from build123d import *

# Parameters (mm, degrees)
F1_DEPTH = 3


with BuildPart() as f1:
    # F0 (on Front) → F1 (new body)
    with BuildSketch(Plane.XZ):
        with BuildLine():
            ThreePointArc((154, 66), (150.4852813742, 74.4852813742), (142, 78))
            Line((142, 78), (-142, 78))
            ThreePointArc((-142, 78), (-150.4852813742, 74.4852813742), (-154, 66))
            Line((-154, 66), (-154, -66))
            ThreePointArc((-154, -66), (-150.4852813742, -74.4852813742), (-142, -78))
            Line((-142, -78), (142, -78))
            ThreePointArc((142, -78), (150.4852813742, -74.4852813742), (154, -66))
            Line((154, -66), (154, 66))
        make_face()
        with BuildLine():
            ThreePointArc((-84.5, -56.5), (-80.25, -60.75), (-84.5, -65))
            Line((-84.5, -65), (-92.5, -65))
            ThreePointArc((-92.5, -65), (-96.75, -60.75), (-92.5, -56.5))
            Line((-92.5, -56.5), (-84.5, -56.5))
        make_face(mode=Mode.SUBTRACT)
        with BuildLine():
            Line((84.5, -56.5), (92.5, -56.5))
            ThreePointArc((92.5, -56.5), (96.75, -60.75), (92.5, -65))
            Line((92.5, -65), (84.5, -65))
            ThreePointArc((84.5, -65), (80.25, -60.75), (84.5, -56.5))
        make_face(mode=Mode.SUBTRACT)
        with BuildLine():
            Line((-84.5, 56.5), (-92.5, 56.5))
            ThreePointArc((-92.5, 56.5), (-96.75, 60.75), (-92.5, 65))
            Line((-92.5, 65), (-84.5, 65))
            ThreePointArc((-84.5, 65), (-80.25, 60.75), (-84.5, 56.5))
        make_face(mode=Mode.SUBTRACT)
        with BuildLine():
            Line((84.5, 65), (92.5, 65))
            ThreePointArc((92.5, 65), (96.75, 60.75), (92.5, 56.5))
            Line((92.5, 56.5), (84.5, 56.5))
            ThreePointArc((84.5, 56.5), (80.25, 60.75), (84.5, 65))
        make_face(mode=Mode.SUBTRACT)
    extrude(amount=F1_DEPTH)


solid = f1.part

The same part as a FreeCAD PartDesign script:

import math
import FreeCAD as App
import Part
import Sketcher
Q = App.Units.Quantity

doc = App.newDocument("Part")
params = doc.addObject("Spreadsheet::Sheet", "Params")
for row, (alias, value) in enumerate([
    ("sketch1_radius", "12 mm"),
    ("sketch1_width", "284 mm"),
    ("sketch1_width2", "8 mm"),
    ("sketch1_height", "132 mm"),
    ("sketch1_radius2", "4.25 mm"),
    ("pad1_length", "3 mm"),
], start=1):
    params.set(f"A{row}", alias)
    params.set(f"B{row}", "=" + value)
    params.setAlias(f"B{row}", alias)

body = doc.addObject("PartDesign::Body", "Body")

# Sketch on XZ plane
sketch1 = doc.addObject("Sketcher::SketchObject", "Sketch")
body.addObject(sketch1)
sketch1.AttachmentSupport = (doc.XZ_Plane, [""])
sketch1.MapMode = "FlatFace"
sketch1.addGeometry(Part.ArcOfCircle(Part.Circle(App.Vector(142, 66, 0), App.Vector(0, 0, 1), 12), math.radians(0), math.radians(90)), False)
sketch1.addGeometry(Part.LineSegment(App.Vector(142, 78, 0), App.Vector(-142, 78, 0)), False)
sketch1.addGeometry(Part.ArcOfCircle(Part.Circle(App.Vector(-142, 66, 0), App.Vector(0, 0, 1), 12), math.radians(90), math.radians(180)), False)
sketch1.addGeometry(Part.LineSegment(App.Vector(-154, 66, 0), App.Vector(-154, -66, 0)), False)
sketch1.addGeometry(Part.ArcOfCircle(Part.Circle(App.Vector(-142, -66, 0), App.Vector(0, 0, 1), 12), math.radians(180), math.radians(270)), False)
sketch1.addGeometry(Part.LineSegment(App.Vector(-142, -78, 0), App.Vector(142, -78, 0)), False)
sketch1.addGeometry(Part.ArcOfCircle(Part.Circle(App.Vector(142, -66, 0), App.Vector(0, 0, 1), 12), math.radians(-90), math.radians(0)), False)
sketch1.addGeometry(Part.LineSegment(App.Vector(154, -66, 0), App.Vector(154, 66, 0)), False)
sketch1.addGeometry(Part.LineSegment(App.Vector(-92.5, -56.5, 0), App.Vector(-84.5, -56.5, 0)), False)
sketch1.addGeometry(Part.ArcOfCircle(Part.Circle(App.Vector(-84.5, -60.8, 0), App.Vector(0, 0, 1), 4.2), math.radians(-90), math.radians(90)), False)
sketch1.addGeometry(Part.LineSegment(App.Vector(-84.5, -65, 0), App.Vector(-92.5, -65, 0)), False)
sketch1.addGeometry(Part.ArcOfCircle(Part.Circle(App.Vector(-92.5, -60.8, 0), App.Vector(0, 0, 1), 4.2), math.radians(90), math.radians(270)), False)
sketch1.addGeometry(Part.ArcOfCircle(Part.Circle(App.Vector(84.5, -60.8, 0), App.Vector(0, 0, 1), 4.2), math.radians(90), math.radians(270)), False)
sketch1.addGeometry(Part.LineSegment(App.Vector(84.5, -56.5, 0), App.Vector(92.5, -56.5, 0)), False)
sketch1.addGeometry(Part.ArcOfCircle(Part.Circle(App.Vector(92.5, -60.8, 0), App.Vector(0, 0, 1), 4.2), math.radians(-90), math.radians(90)), False)
sketch1.addGeometry(Part.LineSegment(App.Vector(92.5, -65, 0), App.Vector(84.5, -65, 0)), False)
sketch1.addGeometry(Part.ArcOfCircle(Part.Circle(App.Vector(-84.5, 60.8, 0), App.Vector(0, 0, 1), 4.2), math.radians(-90), math.radians(90)), False)
sketch1.addGeometry(Part.LineSegment(App.Vector(-84.5, 56.5, 0), App.Vector(-92.5, 56.5, 0)), False)
sketch1.addGeometry(Part.ArcOfCircle(Part.Circle(App.Vector(-92.5, 60.8, 0), App.Vector(0, 0, 1), 4.2), math.radians(90), math.radians(270)), False)
sketch1.addGeometry(Part.LineSegment(App.Vector(-92.5, 65, 0), App.Vector(-84.5, 65, 0)), False)
sketch1.addGeometry(Part.ArcOfCircle(Part.Circle(App.Vector(84.5, 60.8, 0), App.Vector(0, 0, 1), 4.2), math.radians(90), math.radians(270)), False)
sketch1.addGeometry(Part.LineSegment(App.Vector(84.5, 65, 0), App.Vector(92.5, 65, 0)), False)
sketch1.addGeometry(Part.ArcOfCircle(Part.Circle(App.Vector(92.5, 60.8, 0), App.Vector(0, 0, 1), 4.2), math.radians(-90), math.radians(90)), False)
sketch1.addGeometry(Part.LineSegment(App.Vector(92.5, 56.5, 0), App.Vector(84.5, 56.5, 0)), False)
sketch1.addConstraint(Sketcher.Constraint("Tangent", 0, 2, 1, 1))
sketch1.addConstraint(Sketcher.Constraint("Tangent", 1, 2, 2, 1))
sketch1.addConstraint(Sketcher.Constraint("Tangent", 2, 2, 3, 1))
sketch1.addConstraint(Sketcher.Constraint("Tangent", 3, 2, 4, 1))
sketch1.addConstraint(Sketcher.Constraint("Tangent", 4, 2, 5, 1))
sketch1.addConstraint(Sketcher.Constraint("Tangent", 5, 2, 6, 1))
sketch1.addConstraint(Sketcher.Constraint("Tangent", 6, 2, 7, 1))
sketch1.addConstraint(Sketcher.Constraint("Tangent", 7, 2, 0, 1))
sketch1.addConstraint(Sketcher.Constraint("Tangent", 8, 2, 9, 2))
sketch1.addConstraint(Sketcher.Constraint("Tangent", 9, 1, 10, 1))
sketch1.addConstraint(Sketcher.Constraint("Tangent", 10, 2, 11, 2))
sketch1.addConstraint(Sketcher.Constraint("Tangent", 11, 1, 8, 1))
sketch1.addConstraint(Sketcher.Constraint("Tangent", 12, 1, 13, 1))
sketch1.addConstraint(Sketcher.Constraint("Tangent", 13, 2, 14, 2))
sketch1.addConstraint(Sketcher.Constraint("Tangent", 14, 1, 15, 1))
sketch1.addConstraint(Sketcher.Constraint("Tangent", 15, 2, 12, 2))
sketch1.addConstraint(Sketcher.Constraint("Tangent", 16, 1, 17, 1))
sketch1.addConstraint(Sketcher.Constraint("Tangent", 17, 2, 18, 2))
sketch1.addConstraint(Sketcher.Constraint("Tangent", 18, 1, 19, 1))
sketch1.addConstraint(Sketcher.Constraint("Tangent", 19, 2, 16, 2))
sketch1.addConstraint(Sketcher.Constraint("Tangent", 20, 1, 21, 1))
sketch1.addConstraint(Sketcher.Constraint("Tangent", 21, 2, 22, 2))
sketch1.addConstraint(Sketcher.Constraint("Tangent", 22, 1, 23, 1))
sketch1.addConstraint(Sketcher.Constraint("Tangent", 23, 2, 20, 2))
sketch1.addConstraint(Sketcher.Constraint("Horizontal", 1))
sketch1.addConstraint(Sketcher.Constraint("Vertical", 3))
sketch1.addConstraint(Sketcher.Constraint("Horizontal", 5))
sketch1.addConstraint(Sketcher.Constraint("Vertical", 7))
sketch1.addConstraint(Sketcher.Constraint("Horizontal", 8))
sketch1.addConstraint(Sketcher.Constraint("Horizontal", 10))
sketch1.addConstraint(Sketcher.Constraint("Horizontal", 13))
sketch1.addConstraint(Sketcher.Constraint("Horizontal", 15))
sketch1.addConstraint(Sketcher.Constraint("Horizontal", 17))
sketch1.addConstraint(Sketcher.Constraint("Horizontal", 19))
sketch1.addConstraint(Sketcher.Constraint("Horizontal", 21))
sketch1.addConstraint(Sketcher.Constraint("Horizontal", 23))
sketch1.addConstraint(Sketcher.Constraint("Equal", 0, 2))
sketch1.addConstraint(Sketcher.Constraint("Equal", 2, 4))
sketch1.addConstraint(Sketcher.Constraint("Equal", 4, 6))
sketch1.addConstraint(Sketcher.Constraint("Equal", 11, 12))
sketch1.addConstraint(Sketcher.Constraint("Equal", 14, 16))
sketch1.addConstraint(Sketcher.Constraint("Equal", 18, 20))
sketch1.addConstraint(Sketcher.Constraint("Symmetric", 0, 3, 4, 3, -1, 1))
sketch1.addConstraint(Sketcher.Constraint("Symmetric", 12, 3, 16, 3, -1, 1))
sketch1.addConstraint(Sketcher.Constraint("Symmetric", 9, 3, 20, 3, -1, 1))
sketch1.addConstraint(Sketcher.Constraint("Symmetric", 9, 3, 12, 3, -2))
sketch1.addConstraint(Sketcher.Constraint("Vertical", 11, 3, 18, 3))
sketch1.addConstraint(Sketcher.Constraint("Vertical", 14, 3, 22, 3))
sketch1.addConstraint(Sketcher.Constraint("Equal", 10, 13))
sketch1.addConstraint(Sketcher.Constraint("Radius", 0, Q("12 mm")))
sketch1.addConstraint(Sketcher.Constraint("DistanceX", 1, 2, 1, 1, Q("284 mm")))
sketch1.addConstraint(Sketcher.Constraint("DistanceX", 8, 1, 8, 2, Q("8 mm")))
sketch1.addConstraint(Sketcher.Constraint("DistanceY", 3, 2, 3, 1, Q("132 mm")))
sketch1.addConstraint(Sketcher.Constraint("Radius", 9, Q("4.25 mm")))
sketch1.addConstraint(Sketcher.Constraint("DistanceY", 9, 1, -1, 1, Q("65 mm")))
sketch1.addConstraint(Sketcher.Constraint("DistanceX", 9, 3, 12, 3, Q("169 mm")))
sketch1.setExpression("Constraints[49]", "Params.sketch1_radius")
sketch1.setExpression("Constraints[50]", "Params.sketch1_width")
sketch1.setExpression("Constraints[51]", "Params.sketch1_width2")
sketch1.setExpression("Constraints[52]", "Params.sketch1_height")
sketch1.setExpression("Constraints[53]", "Params.sketch1_radius2")
pad1 = doc.addObject("PartDesign::Pad", "Pad")
body.addObject(pad1)
pad1.Profile = sketch1
pad1.setExpression("Length", "Params.pad1_length")

doc.recompute()
